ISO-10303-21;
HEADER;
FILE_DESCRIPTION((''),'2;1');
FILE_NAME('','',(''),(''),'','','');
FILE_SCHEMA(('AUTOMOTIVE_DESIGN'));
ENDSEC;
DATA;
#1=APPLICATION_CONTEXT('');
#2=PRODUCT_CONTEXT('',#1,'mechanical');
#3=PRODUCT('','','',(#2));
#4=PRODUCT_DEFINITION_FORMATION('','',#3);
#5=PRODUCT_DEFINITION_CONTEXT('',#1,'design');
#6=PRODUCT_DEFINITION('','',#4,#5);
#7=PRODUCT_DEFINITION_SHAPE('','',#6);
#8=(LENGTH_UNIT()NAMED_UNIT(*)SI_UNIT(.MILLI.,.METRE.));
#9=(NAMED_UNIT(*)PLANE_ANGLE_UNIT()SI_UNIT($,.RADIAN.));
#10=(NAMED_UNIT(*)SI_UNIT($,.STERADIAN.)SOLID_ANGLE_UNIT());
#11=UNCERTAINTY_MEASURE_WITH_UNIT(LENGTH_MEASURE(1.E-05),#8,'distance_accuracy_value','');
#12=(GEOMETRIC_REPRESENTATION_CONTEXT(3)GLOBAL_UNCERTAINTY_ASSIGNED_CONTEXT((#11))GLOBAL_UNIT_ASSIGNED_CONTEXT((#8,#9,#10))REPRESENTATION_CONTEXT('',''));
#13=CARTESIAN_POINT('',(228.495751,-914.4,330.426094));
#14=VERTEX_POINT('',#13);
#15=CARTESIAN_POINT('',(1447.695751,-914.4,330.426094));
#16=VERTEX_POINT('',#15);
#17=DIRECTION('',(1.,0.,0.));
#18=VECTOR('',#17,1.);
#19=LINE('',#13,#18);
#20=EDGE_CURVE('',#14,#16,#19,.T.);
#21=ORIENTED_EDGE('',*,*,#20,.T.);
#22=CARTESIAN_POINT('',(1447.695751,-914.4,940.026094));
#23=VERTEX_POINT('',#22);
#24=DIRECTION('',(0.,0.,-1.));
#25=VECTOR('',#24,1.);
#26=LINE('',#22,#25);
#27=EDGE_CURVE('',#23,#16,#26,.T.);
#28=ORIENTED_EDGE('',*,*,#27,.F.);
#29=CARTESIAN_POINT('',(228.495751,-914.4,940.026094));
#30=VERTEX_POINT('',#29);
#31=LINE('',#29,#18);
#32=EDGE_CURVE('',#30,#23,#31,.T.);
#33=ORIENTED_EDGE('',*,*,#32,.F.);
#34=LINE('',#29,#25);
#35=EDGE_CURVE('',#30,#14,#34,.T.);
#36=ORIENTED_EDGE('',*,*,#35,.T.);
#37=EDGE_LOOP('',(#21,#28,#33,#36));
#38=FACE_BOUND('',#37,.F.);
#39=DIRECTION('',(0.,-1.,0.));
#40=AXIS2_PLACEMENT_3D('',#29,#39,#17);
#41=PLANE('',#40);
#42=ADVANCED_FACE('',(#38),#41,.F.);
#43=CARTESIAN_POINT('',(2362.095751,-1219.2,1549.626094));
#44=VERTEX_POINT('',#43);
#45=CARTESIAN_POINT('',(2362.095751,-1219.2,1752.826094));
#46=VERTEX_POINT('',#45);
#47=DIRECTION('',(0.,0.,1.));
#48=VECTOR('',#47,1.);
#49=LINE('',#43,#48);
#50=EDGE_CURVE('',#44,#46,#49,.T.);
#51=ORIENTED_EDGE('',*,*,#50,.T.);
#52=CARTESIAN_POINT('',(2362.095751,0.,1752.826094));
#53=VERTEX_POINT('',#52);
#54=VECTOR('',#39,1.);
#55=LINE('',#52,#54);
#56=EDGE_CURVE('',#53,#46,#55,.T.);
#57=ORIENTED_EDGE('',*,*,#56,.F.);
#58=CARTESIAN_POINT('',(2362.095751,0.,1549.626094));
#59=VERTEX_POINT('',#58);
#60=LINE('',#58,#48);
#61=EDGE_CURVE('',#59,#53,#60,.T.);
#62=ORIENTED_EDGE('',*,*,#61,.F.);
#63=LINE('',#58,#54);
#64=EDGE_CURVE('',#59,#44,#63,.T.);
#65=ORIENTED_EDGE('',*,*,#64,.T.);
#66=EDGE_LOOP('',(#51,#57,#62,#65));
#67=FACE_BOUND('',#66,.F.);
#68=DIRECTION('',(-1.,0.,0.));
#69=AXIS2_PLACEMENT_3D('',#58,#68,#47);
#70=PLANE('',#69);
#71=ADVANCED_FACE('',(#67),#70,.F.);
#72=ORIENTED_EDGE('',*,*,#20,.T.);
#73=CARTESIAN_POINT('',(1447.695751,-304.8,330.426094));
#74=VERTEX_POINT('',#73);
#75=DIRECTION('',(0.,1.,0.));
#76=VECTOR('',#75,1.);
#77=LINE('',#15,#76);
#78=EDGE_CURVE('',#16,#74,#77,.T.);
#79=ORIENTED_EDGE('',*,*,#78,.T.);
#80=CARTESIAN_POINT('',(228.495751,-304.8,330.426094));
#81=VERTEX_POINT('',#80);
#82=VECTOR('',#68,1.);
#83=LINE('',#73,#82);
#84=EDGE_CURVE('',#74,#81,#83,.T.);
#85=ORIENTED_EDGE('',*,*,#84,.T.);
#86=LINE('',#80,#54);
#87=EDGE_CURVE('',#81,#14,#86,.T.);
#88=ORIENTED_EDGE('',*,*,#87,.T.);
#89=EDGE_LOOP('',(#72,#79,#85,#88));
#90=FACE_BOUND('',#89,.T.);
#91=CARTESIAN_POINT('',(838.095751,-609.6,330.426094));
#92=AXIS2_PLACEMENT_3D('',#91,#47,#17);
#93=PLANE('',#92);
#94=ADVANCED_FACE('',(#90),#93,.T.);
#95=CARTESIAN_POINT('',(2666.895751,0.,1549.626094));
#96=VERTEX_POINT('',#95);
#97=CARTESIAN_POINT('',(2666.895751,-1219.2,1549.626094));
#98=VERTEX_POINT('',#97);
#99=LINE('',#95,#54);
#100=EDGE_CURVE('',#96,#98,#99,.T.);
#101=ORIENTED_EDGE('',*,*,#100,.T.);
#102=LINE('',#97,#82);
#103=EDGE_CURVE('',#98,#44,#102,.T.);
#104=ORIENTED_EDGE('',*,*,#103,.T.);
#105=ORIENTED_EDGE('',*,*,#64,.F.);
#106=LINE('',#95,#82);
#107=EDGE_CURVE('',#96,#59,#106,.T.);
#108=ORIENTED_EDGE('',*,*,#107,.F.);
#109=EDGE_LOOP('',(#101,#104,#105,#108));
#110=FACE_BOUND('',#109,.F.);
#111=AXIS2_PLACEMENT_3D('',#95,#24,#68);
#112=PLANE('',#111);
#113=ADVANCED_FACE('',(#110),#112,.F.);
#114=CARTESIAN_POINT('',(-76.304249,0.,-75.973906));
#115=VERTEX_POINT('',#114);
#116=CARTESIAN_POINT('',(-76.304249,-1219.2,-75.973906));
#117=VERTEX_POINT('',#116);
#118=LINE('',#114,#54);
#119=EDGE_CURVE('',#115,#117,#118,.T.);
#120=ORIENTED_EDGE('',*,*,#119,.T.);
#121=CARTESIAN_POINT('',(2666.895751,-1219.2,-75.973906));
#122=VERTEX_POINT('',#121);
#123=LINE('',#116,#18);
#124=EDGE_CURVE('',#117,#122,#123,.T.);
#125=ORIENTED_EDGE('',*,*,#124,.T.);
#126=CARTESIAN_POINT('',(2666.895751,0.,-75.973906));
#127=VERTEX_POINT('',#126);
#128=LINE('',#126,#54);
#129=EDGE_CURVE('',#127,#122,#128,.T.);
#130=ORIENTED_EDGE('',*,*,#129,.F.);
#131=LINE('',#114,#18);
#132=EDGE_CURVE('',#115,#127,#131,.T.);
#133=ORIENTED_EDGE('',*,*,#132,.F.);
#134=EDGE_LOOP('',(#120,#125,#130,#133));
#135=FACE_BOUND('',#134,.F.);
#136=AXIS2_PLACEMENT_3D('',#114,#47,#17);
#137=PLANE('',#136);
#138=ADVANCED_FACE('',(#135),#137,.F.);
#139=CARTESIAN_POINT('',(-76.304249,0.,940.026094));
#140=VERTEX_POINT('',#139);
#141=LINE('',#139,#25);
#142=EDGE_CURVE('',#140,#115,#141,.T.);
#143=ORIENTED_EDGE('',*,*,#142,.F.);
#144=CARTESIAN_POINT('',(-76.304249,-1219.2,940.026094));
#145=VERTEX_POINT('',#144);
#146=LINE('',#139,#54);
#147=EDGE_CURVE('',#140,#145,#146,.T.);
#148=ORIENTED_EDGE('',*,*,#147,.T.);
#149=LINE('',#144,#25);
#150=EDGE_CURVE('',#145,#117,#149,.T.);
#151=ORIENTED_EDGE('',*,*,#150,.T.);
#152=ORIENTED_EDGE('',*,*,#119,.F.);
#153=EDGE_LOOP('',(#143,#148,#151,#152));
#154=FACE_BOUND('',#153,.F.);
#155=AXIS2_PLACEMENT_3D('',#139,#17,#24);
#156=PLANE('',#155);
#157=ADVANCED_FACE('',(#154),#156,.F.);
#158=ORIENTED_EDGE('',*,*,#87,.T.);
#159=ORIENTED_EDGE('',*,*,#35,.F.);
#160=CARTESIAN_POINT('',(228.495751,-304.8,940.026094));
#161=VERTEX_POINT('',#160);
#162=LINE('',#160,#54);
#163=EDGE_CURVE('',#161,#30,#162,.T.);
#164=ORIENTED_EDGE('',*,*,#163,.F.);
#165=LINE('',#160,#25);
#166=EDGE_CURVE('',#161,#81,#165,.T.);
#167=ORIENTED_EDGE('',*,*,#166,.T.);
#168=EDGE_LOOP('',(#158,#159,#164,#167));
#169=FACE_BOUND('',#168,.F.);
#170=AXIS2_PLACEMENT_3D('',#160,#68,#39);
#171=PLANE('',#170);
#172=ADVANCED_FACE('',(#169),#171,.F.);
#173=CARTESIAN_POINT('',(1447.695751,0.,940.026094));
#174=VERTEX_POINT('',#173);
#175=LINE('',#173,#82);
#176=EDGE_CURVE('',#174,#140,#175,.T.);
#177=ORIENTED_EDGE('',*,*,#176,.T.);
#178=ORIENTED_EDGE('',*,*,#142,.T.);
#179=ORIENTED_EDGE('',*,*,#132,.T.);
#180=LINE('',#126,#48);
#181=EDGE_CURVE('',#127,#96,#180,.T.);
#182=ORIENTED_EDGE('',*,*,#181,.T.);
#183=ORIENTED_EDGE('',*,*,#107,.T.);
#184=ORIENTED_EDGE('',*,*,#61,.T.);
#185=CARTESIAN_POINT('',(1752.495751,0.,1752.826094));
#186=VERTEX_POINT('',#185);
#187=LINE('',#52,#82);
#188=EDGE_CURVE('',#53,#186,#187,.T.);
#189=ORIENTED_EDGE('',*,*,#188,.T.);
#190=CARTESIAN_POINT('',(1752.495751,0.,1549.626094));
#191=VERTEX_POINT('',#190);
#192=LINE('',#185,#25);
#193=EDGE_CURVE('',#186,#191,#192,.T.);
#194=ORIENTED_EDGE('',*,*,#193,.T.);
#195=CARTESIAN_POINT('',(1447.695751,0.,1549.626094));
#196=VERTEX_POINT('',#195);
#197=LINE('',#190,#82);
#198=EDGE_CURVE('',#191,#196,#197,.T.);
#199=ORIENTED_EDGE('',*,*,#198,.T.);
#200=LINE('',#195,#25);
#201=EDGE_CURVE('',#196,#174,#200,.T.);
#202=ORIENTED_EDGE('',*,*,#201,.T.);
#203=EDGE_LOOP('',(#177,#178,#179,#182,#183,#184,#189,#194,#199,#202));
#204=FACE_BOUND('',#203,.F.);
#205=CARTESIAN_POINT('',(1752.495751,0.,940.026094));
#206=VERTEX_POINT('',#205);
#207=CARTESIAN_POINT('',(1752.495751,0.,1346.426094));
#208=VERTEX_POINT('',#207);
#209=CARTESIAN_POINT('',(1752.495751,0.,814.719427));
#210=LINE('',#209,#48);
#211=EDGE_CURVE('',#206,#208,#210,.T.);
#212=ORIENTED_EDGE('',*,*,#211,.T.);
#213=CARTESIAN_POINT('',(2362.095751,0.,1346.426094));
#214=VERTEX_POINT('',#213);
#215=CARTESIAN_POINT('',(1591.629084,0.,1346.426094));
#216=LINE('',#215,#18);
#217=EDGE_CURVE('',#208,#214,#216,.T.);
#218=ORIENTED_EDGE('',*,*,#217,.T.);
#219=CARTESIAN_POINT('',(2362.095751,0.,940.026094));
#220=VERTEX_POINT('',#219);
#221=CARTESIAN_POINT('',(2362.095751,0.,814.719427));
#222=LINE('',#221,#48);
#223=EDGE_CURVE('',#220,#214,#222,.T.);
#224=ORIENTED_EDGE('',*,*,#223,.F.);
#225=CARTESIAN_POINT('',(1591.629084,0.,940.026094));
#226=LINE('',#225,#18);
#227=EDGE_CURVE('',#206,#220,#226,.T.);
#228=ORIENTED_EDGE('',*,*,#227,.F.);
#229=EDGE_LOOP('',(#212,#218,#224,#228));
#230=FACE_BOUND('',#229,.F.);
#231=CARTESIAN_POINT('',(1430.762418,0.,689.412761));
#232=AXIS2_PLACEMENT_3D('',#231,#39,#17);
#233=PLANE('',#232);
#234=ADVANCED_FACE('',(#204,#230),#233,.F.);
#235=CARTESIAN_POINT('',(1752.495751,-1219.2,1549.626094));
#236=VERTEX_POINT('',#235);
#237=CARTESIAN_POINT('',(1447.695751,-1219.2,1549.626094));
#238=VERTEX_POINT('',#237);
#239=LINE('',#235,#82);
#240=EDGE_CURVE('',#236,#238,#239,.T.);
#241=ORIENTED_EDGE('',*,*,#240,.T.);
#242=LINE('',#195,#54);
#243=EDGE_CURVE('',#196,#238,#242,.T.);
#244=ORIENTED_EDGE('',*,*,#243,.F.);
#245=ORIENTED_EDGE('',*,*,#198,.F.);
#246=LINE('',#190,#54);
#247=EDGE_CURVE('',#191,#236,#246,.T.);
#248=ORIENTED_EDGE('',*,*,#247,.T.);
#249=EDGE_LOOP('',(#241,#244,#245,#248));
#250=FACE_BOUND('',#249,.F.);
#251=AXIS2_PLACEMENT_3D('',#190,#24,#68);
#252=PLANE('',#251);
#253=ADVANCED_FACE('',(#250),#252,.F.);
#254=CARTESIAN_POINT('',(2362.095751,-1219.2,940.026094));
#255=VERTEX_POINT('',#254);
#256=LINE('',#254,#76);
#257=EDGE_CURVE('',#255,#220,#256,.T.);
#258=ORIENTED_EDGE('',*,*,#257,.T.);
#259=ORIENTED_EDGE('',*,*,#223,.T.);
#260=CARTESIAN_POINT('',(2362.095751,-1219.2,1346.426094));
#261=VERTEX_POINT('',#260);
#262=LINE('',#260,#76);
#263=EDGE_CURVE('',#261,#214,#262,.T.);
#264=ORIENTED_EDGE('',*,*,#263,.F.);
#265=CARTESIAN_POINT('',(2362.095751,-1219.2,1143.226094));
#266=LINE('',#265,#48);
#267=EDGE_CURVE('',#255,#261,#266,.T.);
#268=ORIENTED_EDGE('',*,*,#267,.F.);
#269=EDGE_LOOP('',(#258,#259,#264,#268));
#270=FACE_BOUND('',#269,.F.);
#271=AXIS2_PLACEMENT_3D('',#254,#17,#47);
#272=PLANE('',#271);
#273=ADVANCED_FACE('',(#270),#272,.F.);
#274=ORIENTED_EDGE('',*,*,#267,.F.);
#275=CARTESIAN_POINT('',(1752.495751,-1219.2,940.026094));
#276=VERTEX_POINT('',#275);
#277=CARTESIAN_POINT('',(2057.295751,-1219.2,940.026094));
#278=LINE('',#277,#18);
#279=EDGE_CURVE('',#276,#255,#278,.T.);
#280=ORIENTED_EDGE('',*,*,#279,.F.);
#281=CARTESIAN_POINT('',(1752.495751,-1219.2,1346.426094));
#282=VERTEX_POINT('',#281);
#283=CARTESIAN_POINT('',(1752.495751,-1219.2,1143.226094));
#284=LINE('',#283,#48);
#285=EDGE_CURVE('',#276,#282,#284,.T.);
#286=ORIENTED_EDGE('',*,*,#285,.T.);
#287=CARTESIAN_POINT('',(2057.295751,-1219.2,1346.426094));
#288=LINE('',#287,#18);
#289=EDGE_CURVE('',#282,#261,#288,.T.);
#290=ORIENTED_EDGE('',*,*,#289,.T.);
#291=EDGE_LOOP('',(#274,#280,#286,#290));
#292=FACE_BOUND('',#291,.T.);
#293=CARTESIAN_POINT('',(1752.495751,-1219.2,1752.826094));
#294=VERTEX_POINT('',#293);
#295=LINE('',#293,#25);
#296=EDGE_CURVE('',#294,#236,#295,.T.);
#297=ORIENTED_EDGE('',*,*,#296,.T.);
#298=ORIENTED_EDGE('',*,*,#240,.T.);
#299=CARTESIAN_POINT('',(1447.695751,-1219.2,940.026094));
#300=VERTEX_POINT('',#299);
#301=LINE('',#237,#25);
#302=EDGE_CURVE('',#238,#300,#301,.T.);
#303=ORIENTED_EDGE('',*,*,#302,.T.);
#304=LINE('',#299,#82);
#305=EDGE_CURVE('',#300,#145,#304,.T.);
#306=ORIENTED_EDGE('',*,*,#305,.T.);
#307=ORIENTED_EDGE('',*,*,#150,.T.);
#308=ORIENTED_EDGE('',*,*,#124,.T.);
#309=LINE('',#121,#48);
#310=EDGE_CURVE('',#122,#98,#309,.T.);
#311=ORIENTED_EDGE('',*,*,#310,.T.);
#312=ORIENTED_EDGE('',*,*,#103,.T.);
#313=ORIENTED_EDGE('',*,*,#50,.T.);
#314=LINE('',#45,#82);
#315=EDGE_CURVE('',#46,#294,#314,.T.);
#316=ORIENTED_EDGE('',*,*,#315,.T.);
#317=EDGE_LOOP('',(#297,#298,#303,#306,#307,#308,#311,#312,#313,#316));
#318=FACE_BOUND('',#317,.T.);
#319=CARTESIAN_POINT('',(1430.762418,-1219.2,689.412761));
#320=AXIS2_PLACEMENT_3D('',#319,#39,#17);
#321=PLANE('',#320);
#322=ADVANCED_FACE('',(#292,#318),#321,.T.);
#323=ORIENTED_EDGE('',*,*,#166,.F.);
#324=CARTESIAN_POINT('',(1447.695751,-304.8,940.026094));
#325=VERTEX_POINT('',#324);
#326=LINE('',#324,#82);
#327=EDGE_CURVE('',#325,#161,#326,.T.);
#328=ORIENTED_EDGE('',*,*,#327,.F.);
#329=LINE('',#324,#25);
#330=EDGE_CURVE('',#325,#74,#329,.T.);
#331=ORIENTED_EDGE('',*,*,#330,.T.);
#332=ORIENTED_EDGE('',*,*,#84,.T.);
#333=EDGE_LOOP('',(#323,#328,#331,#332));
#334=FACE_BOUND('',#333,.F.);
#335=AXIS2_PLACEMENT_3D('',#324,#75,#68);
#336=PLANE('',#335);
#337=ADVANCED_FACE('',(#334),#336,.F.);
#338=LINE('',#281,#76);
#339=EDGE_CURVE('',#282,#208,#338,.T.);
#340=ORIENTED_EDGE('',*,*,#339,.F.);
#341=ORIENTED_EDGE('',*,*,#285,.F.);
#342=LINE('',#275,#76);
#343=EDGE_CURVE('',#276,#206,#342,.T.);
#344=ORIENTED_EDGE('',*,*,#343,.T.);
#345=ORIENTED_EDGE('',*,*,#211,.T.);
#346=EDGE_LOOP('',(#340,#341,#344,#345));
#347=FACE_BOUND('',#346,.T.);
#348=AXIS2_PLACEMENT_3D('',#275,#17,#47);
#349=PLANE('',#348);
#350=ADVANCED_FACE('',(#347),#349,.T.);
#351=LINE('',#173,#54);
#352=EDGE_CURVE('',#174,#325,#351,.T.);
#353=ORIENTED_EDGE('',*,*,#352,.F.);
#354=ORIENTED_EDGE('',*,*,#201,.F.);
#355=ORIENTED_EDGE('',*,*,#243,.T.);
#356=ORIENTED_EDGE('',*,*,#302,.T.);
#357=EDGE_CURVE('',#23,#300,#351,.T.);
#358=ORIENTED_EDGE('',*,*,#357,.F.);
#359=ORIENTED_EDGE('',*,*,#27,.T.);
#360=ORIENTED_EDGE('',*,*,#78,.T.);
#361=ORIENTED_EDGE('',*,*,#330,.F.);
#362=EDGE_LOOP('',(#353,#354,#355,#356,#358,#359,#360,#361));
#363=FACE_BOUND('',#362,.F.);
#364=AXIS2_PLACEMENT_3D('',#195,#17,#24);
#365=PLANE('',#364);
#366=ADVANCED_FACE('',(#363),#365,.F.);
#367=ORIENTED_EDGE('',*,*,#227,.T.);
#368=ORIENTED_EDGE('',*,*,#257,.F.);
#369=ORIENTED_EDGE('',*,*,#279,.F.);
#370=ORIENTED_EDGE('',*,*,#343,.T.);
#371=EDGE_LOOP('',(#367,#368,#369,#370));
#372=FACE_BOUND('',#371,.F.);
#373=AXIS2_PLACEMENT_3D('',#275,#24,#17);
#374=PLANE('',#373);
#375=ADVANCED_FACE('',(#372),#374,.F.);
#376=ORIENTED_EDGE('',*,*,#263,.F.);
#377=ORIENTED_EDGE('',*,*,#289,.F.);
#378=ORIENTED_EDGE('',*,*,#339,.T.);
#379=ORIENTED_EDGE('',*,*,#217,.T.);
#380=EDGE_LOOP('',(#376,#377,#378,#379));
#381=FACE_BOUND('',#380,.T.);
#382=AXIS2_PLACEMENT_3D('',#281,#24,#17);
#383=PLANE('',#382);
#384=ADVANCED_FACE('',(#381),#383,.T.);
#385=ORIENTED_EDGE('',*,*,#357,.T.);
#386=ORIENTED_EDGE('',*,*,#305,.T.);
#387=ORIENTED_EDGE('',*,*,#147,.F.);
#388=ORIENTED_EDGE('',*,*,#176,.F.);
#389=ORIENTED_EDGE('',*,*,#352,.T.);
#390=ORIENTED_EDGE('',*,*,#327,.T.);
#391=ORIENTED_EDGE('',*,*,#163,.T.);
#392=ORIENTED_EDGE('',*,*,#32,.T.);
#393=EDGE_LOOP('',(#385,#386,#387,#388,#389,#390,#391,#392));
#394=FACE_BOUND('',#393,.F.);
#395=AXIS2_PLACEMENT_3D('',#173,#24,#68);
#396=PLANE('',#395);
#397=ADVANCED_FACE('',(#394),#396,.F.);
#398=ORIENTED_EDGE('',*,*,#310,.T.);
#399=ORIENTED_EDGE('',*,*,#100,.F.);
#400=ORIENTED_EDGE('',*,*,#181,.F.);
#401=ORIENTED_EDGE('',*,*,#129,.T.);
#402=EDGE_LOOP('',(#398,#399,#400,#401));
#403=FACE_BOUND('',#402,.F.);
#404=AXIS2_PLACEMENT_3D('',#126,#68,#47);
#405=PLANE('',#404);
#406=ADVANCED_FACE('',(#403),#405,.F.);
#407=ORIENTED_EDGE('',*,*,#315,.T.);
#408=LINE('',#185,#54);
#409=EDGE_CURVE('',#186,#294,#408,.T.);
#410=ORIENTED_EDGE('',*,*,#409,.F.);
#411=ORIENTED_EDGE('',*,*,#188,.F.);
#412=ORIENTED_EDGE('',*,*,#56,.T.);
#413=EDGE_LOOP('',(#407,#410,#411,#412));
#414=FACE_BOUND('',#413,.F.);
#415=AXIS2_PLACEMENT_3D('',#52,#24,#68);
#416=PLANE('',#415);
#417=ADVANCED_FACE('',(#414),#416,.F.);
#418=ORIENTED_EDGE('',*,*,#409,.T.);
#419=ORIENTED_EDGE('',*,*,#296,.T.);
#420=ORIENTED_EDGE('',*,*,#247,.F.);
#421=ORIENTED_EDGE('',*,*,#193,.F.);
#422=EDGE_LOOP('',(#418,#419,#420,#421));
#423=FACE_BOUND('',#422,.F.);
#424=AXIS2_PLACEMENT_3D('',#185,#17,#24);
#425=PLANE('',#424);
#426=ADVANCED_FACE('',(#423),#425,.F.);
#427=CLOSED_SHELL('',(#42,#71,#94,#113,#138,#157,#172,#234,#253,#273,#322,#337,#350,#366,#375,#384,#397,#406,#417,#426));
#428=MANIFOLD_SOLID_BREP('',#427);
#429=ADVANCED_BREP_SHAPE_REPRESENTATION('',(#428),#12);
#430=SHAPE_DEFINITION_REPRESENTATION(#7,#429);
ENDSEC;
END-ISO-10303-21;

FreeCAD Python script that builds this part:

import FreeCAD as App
import Part
import Sketcher
Q = App.Units.Quantity


def add_polygon(sketch, points):
    """Adds a closed chain of lines whose ends are joined by coincident constraints."""
    first, n = sketch.GeometryCount, len(points)
    for a, b in zip(points, points[1:] + points[:1]):
        sketch.addGeometry(Part.LineSegment(App.Vector(*a, 0), App.Vector(*b, 0)), False)
    for i in range(n):
        sketch.addConstraint(Sketcher.Constraint("Coincident", first + i, 2, first + (i + 1) % n, 1))

doc = App.newDocument("Part")
body = doc.addObject("PartDesign::Body", "Body")

# Sketch on XZ plane
sketch1 = doc.addObject("Sketcher::SketchObject", "Sketch")
body.addObject(sketch1)
sketch1.AttachmentSupport = (doc.XZ_Plane, [""])
sketch1.MapMode = "FlatFace"
add_polygon(sketch1, [(-76, 940), (-76, -76), (2667, -76), (2667, 1550), (2362, 1550), (2362, 1753), (1752, 1753), (1752, 1550), (1448, 1550), (1448, 940)])  # lines 0-9
sketch1.addConstraint([
    Sketcher.Constraint("Vertical", 0),
    Sketcher.Constraint("Horizontal", 1),
    Sketcher.Constraint("Vertical", 2),
    Sketcher.Constraint("Horizontal", 3),
    Sketcher.Constraint("Vertical", 4),
    Sketcher.Constraint("Horizontal", 5),
    Sketcher.Constraint("Vertical", 6),
    Sketcher.Constraint("Horizontal", 7),
    Sketcher.Constraint("Vertical", 8),
    Sketcher.Constraint("Horizontal", 9),
    Sketcher.Constraint("Horizontal", 3, 2, 6, 2),
    Sketcher.Constraint("Equal", 3, 7),
    Sketcher.Constraint("Equal", 5, 8),
    Sketcher.Constraint("DistanceX", 1, 1, 1, 2, Q("108 in")),
    Sketcher.Constraint("DistanceX", 3, 2, 3, 1, Q("12 in")),
    Sketcher.Constraint("DistanceX", 5, 2, 5, 1, Q("24 in")),
    Sketcher.Constraint("DistanceY", 0, 2, 0, 1, Q("40 in")),
    Sketcher.Constraint("DistanceY", 4, 1, 4, 2, Q("8 in")),
    Sketcher.Constraint("DistanceX", 0, 2, -1, 1, Q("76.304249 mm")),
    Sketcher.Constraint("DistanceY", 0, 2, -1, 1, Q("75.973906 mm")),
])
pad1 = doc.addObject("PartDesign::Pad", "Pad")
body.addObject(pad1)
pad1.Profile = sketch1
pad1.Length = Q("48 in")

# Sketch on XZ plane
sketch2 = doc.addObject("Sketcher::SketchObject", "Sketch001")
body.addObject(sketch2)
sketch2.AttachmentSupport = (doc.XZ_Plane, [""])
sketch2.MapMode = "FlatFace"
sketch2.AttachmentOffset = App.Placement(App.Vector(0, 0, 48 * 25.4), App.Rotation())
add_polygon(sketch2, [(1752, 1346), (1752, 940), (2362, 940), (2362, 1346)])  # lines 0-3
sketch2.addConstraint([
    Sketcher.Constraint("Vertical", 0),
    Sketcher.Constraint("Horizontal", 1),
    Sketcher.Constraint("Vertical", 2),
    Sketcher.Constraint("Horizontal", 3),
    Sketcher.Constraint("DistanceX", 1, 1, 1, 2, Q("24 in")),
    Sketcher.Constraint("DistanceY", 0, 2, 0, 1, Q("16 in")),
    Sketcher.Constraint("DistanceX", -1, 1, 0, 2, Q("1752.495751 mm")),
    Sketcher.Constraint("DistanceY", -1, 1, 0, 2, Q("940.026094 mm")),
])
pocket1 = doc.addObject("PartDesign::Pocket", "Pocket")
body.addObject(pocket1)
pocket1.Profile = sketch2
pocket1.Type = "ThroughAll"

# Sketch on XY plane
sketch3 = doc.addObject("Sketcher::SketchObject", "Sketch002")
body.addObject(sketch3)
sketch3.AttachmentSupport = (doc.XY_Plane, [""])
sketch3.MapMode = "FlatFace"
sketch3.AttachmentOffset = App.Placement(App.Vector(0, 0, 940.026094), App.Rotation())
add_polygon(sketch3, [(228, -914), (1448, -914), (1448, -305), (228, -305)])  # lines 0-3
sketch3.addConstraint([
    Sketcher.Constraint("Horizontal", 0),
    Sketcher.Constraint("Vertical", 1),
    Sketcher.Constraint("Horizontal", 2),
    Sketcher.Constraint("Vertical", 3),
    Sketcher.Constraint("DistanceX", 0, 1, 0, 2, Q("48 in")),
    Sketcher.Constraint("DistanceY", 1, 1, 1, 2, Q("24 in")),
    Sketcher.Constraint("DistanceY", 0, 2, -1, 1, Q("36 in")),
    Sketcher.Constraint("DistanceX", -1, 1, 0, 2, Q("1447.695751 mm")),
])
pocket2 = doc.addObject("PartDesign::Pocket", "Pocket001")
body.addObject(pocket2)
pocket2.Profile = sketch3
pocket2.Length = Q("24 in")

doc.recompute()
